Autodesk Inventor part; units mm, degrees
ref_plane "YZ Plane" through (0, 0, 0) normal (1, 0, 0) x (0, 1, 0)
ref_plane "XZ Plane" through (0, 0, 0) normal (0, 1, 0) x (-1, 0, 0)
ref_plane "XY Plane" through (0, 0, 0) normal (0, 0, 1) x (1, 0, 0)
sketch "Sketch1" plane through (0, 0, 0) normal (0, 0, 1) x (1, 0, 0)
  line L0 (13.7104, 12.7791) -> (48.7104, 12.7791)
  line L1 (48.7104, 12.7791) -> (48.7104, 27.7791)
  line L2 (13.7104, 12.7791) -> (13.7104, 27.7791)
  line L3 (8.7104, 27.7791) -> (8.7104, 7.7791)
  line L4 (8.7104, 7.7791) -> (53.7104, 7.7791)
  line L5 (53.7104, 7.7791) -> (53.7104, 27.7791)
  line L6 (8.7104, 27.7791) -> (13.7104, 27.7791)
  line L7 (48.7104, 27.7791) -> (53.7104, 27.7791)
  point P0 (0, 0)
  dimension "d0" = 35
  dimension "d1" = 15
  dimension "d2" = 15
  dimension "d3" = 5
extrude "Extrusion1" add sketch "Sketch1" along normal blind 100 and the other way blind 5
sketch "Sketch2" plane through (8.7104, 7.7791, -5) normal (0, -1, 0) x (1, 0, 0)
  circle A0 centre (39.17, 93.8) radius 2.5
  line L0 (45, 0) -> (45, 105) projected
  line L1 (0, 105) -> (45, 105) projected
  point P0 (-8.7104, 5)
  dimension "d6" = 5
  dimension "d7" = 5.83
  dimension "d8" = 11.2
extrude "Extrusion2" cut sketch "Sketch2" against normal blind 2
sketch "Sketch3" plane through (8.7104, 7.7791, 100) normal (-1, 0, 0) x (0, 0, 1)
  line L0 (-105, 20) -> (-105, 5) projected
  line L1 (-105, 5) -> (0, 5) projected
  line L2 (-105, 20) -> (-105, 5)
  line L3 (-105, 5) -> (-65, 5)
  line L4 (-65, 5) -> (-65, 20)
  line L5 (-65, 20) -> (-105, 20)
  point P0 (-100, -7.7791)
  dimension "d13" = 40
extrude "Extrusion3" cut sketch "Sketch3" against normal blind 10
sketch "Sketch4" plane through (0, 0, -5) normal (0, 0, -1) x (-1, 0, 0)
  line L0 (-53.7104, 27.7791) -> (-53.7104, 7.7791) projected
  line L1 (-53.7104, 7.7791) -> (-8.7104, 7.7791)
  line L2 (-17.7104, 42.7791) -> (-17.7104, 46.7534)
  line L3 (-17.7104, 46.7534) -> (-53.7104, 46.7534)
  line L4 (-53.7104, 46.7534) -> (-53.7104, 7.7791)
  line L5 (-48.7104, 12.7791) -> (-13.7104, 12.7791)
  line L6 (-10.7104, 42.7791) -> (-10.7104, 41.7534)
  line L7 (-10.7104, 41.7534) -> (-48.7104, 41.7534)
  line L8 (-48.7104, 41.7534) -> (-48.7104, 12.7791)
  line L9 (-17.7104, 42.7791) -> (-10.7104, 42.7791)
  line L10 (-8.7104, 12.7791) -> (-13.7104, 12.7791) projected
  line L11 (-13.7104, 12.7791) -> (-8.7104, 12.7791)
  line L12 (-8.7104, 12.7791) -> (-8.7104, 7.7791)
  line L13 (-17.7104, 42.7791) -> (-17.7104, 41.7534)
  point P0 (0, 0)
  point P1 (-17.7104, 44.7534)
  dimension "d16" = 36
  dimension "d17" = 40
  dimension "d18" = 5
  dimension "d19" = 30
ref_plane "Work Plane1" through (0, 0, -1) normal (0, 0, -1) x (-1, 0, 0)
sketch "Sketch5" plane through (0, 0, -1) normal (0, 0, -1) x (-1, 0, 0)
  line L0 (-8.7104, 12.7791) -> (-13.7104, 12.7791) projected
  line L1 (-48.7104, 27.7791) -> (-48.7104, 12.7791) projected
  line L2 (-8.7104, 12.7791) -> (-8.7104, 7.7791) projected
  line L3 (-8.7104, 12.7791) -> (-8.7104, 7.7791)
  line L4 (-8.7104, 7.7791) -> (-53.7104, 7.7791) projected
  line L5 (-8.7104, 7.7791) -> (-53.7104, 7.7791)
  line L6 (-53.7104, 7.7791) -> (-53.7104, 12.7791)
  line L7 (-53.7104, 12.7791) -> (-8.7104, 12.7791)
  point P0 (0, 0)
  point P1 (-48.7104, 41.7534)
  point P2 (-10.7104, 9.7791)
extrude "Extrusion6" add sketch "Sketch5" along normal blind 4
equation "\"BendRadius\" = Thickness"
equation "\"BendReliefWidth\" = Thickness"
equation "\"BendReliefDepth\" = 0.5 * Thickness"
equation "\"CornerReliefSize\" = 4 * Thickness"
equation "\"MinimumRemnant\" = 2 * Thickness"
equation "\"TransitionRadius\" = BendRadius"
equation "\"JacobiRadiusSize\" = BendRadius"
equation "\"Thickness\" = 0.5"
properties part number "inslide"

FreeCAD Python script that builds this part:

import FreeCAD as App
import Part
import Sketcher
from FreeCAD import Vector


def add_polygon(sketch, points):
    """Adds a closed chain of lines whose ends are joined by coincident constraints."""
    first, n = sketch.GeometryCount, len(points)
    for a, b in zip(points, points[1:] + points[:1]):
        sketch.addGeometry(Part.LineSegment(App.Vector(*a, 0), App.Vector(*b, 0)), False)
    for i in range(n):
        sketch.addConstraint(Sketcher.Constraint("Coincident", first + i, 2, first + (i + 1) % n, 1))

doc = App.newDocument("Part")
body = doc.addObject("PartDesign::Body", "Body")

# Sketch on XY plane
sketch1 = body.newObject("Sketcher::SketchObject", "Sketch")
sketch1.AttachmentSupport = (doc.getObject("XY_Plane"), [""])
sketch1.MapMode = "FlatFace"
add_polygon(sketch1, [(49, 13), (14, 13), (14, 28), (9, 28), (9, 8), (54, 8), (54, 28), (49, 28)])  # lines 0-7
sketch1.addConstraint([
    Sketcher.Constraint("Horizontal", 0),
    Sketcher.Constraint("Vertical", 1),
    Sketcher.Constraint("Horizontal", 2),
    Sketcher.Constraint("Vertical", 3),
    Sketcher.Constraint("Horizontal", 4),
    Sketcher.Constraint("Vertical", 5),
    Sketcher.Constraint("Horizontal", 6),
    Sketcher.Constraint("Vertical", 7),
    Sketcher.Constraint("Horizontal", 2, 2, 5, 2),
    Sketcher.Constraint("Equal", 2, 6),
    Sketcher.Constraint("DistanceX", 0, 2, 0, 1, 35.0),
    Sketcher.Constraint("DistanceX", 2, 2, 2, 1, 5.0),
    Sketcher.Constraint("DistanceY", 1, 1, 1, 2, 15.0),
    Sketcher.Constraint("DistanceY", 3, 2, 0, 2, 5.0),
    Sketcher.Constraint("DistanceY", -1, 1, 0, 2, 12.779),
    Sketcher.Constraint("DistanceX", -1, 1, 0, 2, 13.7104),
])
pad1 = body.newObject("PartDesign::Pad", "Pad")
pad1.Profile = sketch1
pad1.Type = "TwoLengths"
pad1.Length = 100
pad1.Length2 = 5

# Sketch on XZ plane
sketch2 = body.newObject("Sketcher::SketchObject", "Sketch001")
sketch2.AttachmentSupport = (doc.getObject("XZ_Plane"), [""])
sketch2.MapMode = "FlatFace"
sketch2.AttachmentOffset = App.Placement(Vector(0, 0, -7.7791), App.Rotation())
sketch2.addGeometry(Part.Circle(Vector(47.9, 88.8, 0), Vector(0, 0, 1), 2.5), False)
sketch2.addConstraint([
    Sketcher.Constraint("Diameter", 0, 5.0),
    Sketcher.Constraint("DistanceY", -1, 1, 0, 3, 88.8),
    Sketcher.Constraint("DistanceX", -1, 1, 0, 3, 47.8804),
])
pocket1 = body.newObject("PartDesign::Pocket", "Pocket")
pocket1.Profile = sketch2
pocket1.Length = 2

# Sketch on YZ plane
sketch3 = body.newObject("Sketcher::SketchObject", "Sketch002")
sketch3.AttachmentSupport = (doc.getObject("YZ_Plane"), [""])
sketch3.MapMode = "FlatFace"
sketch3.AttachmentOffset = App.Placement(Vector(0, 0, 8.7104), App.Rotation())
add_polygon(sketch3, [(28, 35), (28, -5), (13, -5), (13, 35)])  # lines 0-3
sketch3.addConstraint([
    Sketcher.Constraint("Vertical", 0),
    Sketcher.Constraint("Horizontal", 1),
    Sketcher.Constraint("Vertical", 2),
    Sketcher.Constraint("Horizontal", 3),
    Sketcher.Constraint("DistanceY", 0, 2, 0, 1, 40.0),
    Sketcher.Constraint("DistanceX", 1, 2, 1, 1, 15.0),
    Sketcher.Constraint("DistanceY", 0, 2, -1, 1, 5.0),
    Sketcher.Constraint("DistanceX", -1, 1, 0, 2, 27.779),
])
pocket2 = body.newObject("PartDesign::Pocket", "Pocket001")
pocket2.Profile = sketch3
pocket2.Length = 10
pocket2.Reversed = True

# Sketch on XY plane
sketch4 = body.newObject("Sketcher::SketchObject", "Sketch003")
sketch4.AttachmentSupport = (doc.getObject("XY_Plane"), [""])
sketch4.MapMode = "FlatFace"
sketch4.AttachmentOffset = App.Placement(Vector(0, 0, -1), App.Rotation())
add_polygon(sketch4, [(9, 8), (9, 13), (54, 13), (54, 8)])  # lines 0-3
sketch4.addConstraint([
    Sketcher.Constraint("Vertical", 0),
    Sketcher.Constraint("Horizontal", 1),
    Sketcher.Constraint("Vertical", 2),
    Sketcher.Constraint("Horizontal", 3),
    Sketcher.Constraint("DistanceX", 1, 1, 1, 2, 45.0),
    Sketcher.Constraint("DistanceY", 0, 1, 0, 2, 5.0),
    Sketcher.Constraint("DistanceY", -1, 1, 0, 2, 12.779),
    Sketcher.Constraint("DistanceX", -1, 1, 0, 2, 8.7104),
])
pad2 = body.newObject("PartDesign::Pad", "Pad001")
pad2.Profile = sketch4
pad2.Length = 4
pad2.Reversed = True

doc.recompute()
